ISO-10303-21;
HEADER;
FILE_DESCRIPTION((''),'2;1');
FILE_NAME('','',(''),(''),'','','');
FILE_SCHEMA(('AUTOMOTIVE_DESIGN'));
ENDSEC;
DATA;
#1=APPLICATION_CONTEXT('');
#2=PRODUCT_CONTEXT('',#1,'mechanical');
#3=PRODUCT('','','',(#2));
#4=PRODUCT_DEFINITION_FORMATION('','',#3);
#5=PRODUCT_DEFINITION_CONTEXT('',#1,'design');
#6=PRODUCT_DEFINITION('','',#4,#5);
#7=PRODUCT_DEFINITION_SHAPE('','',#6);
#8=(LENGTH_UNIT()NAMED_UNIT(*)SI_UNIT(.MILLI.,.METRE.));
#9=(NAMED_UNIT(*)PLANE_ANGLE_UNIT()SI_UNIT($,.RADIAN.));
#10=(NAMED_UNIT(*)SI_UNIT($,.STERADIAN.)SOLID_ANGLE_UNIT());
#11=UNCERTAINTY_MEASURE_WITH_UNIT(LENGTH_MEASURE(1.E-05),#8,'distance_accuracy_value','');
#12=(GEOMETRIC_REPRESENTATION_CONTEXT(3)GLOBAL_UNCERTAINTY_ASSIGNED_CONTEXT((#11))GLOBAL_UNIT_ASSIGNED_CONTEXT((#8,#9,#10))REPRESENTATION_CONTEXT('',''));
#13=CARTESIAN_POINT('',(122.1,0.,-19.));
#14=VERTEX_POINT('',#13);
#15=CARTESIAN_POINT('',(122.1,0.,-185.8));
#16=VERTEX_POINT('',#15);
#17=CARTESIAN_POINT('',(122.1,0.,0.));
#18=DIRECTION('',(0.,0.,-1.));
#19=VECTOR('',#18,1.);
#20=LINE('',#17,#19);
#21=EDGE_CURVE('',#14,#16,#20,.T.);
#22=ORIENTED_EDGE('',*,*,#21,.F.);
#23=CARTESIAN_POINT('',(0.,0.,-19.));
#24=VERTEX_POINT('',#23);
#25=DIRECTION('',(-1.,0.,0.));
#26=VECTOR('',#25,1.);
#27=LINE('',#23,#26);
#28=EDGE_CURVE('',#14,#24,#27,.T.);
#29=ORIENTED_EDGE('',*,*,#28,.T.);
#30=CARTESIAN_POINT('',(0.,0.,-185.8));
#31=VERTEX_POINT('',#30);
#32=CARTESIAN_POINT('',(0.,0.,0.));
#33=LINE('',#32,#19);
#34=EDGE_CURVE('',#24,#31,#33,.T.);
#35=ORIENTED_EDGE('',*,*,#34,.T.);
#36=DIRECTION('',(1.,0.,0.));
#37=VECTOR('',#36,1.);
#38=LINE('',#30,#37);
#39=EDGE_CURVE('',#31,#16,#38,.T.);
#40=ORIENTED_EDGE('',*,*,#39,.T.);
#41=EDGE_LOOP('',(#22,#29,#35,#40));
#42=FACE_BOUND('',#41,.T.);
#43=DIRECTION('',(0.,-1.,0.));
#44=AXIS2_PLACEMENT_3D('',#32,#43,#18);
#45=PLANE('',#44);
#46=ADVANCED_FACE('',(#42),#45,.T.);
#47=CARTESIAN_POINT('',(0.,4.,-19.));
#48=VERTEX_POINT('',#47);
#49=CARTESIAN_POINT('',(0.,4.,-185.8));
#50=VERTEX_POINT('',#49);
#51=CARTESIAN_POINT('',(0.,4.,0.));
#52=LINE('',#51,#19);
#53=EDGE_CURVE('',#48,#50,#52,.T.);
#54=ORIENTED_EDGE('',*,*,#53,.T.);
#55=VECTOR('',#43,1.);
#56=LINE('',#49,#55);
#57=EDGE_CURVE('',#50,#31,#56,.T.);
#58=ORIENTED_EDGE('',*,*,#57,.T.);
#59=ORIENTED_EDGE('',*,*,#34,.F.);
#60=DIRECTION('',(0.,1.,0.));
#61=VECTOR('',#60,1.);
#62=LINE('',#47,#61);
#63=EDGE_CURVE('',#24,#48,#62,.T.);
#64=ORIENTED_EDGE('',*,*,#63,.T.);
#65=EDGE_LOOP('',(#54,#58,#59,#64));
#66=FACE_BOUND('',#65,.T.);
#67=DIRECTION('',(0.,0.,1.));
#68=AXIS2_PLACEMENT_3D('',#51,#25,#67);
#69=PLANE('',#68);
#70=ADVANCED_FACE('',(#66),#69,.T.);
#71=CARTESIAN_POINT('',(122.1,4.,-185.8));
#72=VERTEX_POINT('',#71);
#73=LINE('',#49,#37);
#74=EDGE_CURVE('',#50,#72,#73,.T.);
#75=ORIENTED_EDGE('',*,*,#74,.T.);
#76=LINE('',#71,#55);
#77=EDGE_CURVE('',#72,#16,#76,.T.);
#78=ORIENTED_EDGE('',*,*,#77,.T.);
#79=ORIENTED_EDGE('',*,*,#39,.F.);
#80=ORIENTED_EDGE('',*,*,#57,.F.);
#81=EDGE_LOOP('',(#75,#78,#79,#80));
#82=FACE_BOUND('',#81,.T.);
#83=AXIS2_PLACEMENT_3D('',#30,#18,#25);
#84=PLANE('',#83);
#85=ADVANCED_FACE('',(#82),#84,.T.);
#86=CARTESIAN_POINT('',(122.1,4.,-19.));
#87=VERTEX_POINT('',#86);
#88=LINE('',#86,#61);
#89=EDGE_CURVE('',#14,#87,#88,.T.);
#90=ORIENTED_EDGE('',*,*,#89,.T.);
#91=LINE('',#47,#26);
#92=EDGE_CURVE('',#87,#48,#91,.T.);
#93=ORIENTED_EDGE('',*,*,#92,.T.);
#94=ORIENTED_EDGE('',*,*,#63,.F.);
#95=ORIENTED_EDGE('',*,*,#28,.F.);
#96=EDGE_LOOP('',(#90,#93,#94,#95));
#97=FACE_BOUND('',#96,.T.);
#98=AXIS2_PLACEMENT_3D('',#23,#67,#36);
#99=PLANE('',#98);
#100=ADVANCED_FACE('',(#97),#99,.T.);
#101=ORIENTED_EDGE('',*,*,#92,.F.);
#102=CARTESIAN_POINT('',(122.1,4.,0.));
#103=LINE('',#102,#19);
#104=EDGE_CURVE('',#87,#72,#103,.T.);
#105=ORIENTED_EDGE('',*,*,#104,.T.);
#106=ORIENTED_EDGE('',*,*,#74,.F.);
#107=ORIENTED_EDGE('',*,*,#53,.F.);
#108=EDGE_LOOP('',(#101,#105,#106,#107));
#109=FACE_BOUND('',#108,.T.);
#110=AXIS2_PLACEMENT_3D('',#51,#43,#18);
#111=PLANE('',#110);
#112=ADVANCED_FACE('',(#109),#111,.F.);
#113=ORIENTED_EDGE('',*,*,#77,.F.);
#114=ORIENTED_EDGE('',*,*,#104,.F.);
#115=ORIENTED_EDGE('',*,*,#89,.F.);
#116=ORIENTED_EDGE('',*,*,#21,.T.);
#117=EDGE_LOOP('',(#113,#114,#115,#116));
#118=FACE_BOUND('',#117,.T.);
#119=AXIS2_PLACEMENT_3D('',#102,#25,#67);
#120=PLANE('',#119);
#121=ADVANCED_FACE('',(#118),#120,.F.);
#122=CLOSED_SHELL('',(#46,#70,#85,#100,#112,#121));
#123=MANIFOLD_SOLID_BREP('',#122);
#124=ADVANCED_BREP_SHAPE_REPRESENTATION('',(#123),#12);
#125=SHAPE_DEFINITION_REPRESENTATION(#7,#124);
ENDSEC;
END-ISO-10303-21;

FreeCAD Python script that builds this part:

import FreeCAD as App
import Part
import Sketcher

V = App.Vector
Q = App.Units.Quantity


def add_polygon(sketch, points):
    """Adds a closed chain of lines whose ends are joined by coincident constraints."""
    first, n = sketch.GeometryCount, len(points)
    for a, b in zip(points, points[1:] + points[:1]):
        sketch.addGeometry(Part.LineSegment(App.Vector(*a, 0), App.Vector(*b, 0)), False)
    for i in range(n):
        sketch.addConstraint(Sketcher.Constraint("Coincident", first + i, 2, first + (i + 1) % n, 1))

doc = App.newDocument("Part")
params = doc.addObject("Spreadsheet::Sheet", "Params")
for row, (alias, value) in enumerate([
    ("sketch1_width", "122.1 mm"),
    ("sketch1_height", "192.8 mm"),
    ("pad1_length", "4 mm"),
    ("sketch2_height", "4 mm"),
    ("sketch2_width", "122.1 mm"),
    ("pad2_length", "5 mm"),
    ("pocket1_length", "12 mm"),
    ("pocket2_length", "19 mm"),
], start=1):
    params.set(f"A{row}", alias)
    params.set(f"B{row}", "=" + value)
    params.setAlias(f"B{row}", alias)

body = doc.addObject("PartDesign::Body", "Body")

sketch1 = body.newObject("Sketcher::SketchObject", "Sketch")
sketch1.AttachmentSupport = (doc.getObject("XZ_Plane"), [""])
sketch1.MapMode = "FlatFace"
add_polygon(sketch1, [(0, -193), (0, 0), (122, 0), (122, -193)])
sketch1.addConstraint([
    Sketcher.Constraint("Vertical", 0),
    Sketcher.Constraint("Horizontal", 1),
    Sketcher.Constraint("Vertical", 2),
    Sketcher.Constraint("Horizontal", 3),
    Sketcher.Constraint("Coincident", 0, 2, -1, 1),
    Sketcher.Constraint("DistanceX", 1, 1, 1, 2, Q("122.1 mm")),
    Sketcher.Constraint("DistanceY", 0, 1, 0, 2, Q("192.8 mm")),
])
sketch1.setExpression("Constraints[9]", "Params.sketch1_width")
sketch1.setExpression("Constraints[10]", "Params.sketch1_height")
pad1 = body.newObject("PartDesign::Pad", "Pad")
pad1.Profile = sketch1
pad1.setExpression("Length", "Params.pad1_length")
pad1.Reversed = True

sketch2 = body.newObject("Sketcher::SketchObject", "Sketch001")
sketch2.AttachmentSupport = (doc.getObject("XY_Plane"), [""])
sketch2.MapMode = "FlatFace"
sketch2.AttachmentOffset = App.Placement(V(0, 0, -192.8), App.Rotation())
add_polygon(sketch2, [(122.1, 4), (122.1, 0), (0, 0), (0, 4)])
sketch2.addConstraint([
    Sketcher.Constraint("Vertical", 0),
    Sketcher.Constraint("Horizontal", 1),
    Sketcher.Constraint("Vertical", 2),
    Sketcher.Constraint("Horizontal", 3),
    Sketcher.Constraint("Coincident", 1, 2, -1, 1),
    Sketcher.Constraint("DistanceY", 0, 2, 0, 1, Q("4 mm")),
    Sketcher.Constraint("DistanceX", 1, 2, 1, 1, Q("122.1 mm")),
])
sketch2.setExpression("Constraints[9]", "Params.sketch2_height")
sketch2.setExpression("Constraints[10]", "Params.sketch2_width")
pad2 = body.newObject("PartDesign::Pad", "Pad001")
pad2.Profile = sketch2
pad2.setExpression("Length", "Params.pad2_length")
pad2.Reversed = True

sketch3 = body.newObject("Sketcher::SketchObject", "Sketch002")
sketch3.AttachmentSupport = (doc.getObject("XY_Plane"), [""])
sketch3.MapMode = "FlatFace"
sketch3.AttachmentOffset = App.Placement(V(0, 0, -197.8), App.Rotation())
add_polygon(sketch3, [(184, 75), (184, -62), (-30, -62), (-30, 75)])
sketch3.addConstraint([
    Sketcher.Constraint("Vertical", 0),
    Sketcher.Constraint("Horizontal", 1),
    Sketcher.Constraint("Vertical", 2),
    Sketcher.Constraint("Horizontal", 3),
    Sketcher.Constraint("DistanceX", 1, 2, 1, 1, Q("213.977787 mm")),
    Sketcher.Constraint("DistanceY", 0, 2, 0, 1, Q("137.124863 mm")),
    Sketcher.Constraint("DistanceX", -1, 1, 0, 2, Q("184.091261 mm")),
    Sketcher.Constraint("DistanceY", 0, 2, -1, 1, Q("62.251975 mm")),
])
pocket1 = body.newObject("PartDesign::Pocket", "Pocket")
pocket1.Profile = sketch3
pocket1.setExpression("Length", "Params.pocket1_length")
pocket1.Reversed = True

sketch4 = body.newObject("Sketcher::SketchObject", "Sketch003")
sketch4.AttachmentSupport = (doc.getObject("XY_Plane"), [""])
sketch4.MapMode = "FlatFace"
add_polygon(sketch4, [(-34, 77), (-34, -59), (162, -59), (162, 77)])
sketch4.addConstraint([
    Sketcher.Constraint("Vertical", 0),
    Sketcher.Constraint("Horizontal", 1),
    Sketcher.Constraint("Vertical", 2),
    Sketcher.Constraint("Horizontal", 3),
    Sketcher.Constraint("DistanceX", 1, 1, 1, 2, Q("196.372742 mm")),
    Sketcher.Constraint("DistanceY", 0, 2, 0, 1, Q("135.766118 mm")),
    Sketcher.Constraint("DistanceX", 0, 2, -1, 1, Q("34.394418 mm")),
    Sketcher.Constraint("DistanceY", 0, 2, -1, 1, Q("59.194045 mm")),
])
pocket2 = body.newObject("PartDesign::Pocket", "Pocket001")
pocket2.Profile = sketch4
pocket2.setExpression("Length", "Params.pocket2_length")

doc.recompute()
